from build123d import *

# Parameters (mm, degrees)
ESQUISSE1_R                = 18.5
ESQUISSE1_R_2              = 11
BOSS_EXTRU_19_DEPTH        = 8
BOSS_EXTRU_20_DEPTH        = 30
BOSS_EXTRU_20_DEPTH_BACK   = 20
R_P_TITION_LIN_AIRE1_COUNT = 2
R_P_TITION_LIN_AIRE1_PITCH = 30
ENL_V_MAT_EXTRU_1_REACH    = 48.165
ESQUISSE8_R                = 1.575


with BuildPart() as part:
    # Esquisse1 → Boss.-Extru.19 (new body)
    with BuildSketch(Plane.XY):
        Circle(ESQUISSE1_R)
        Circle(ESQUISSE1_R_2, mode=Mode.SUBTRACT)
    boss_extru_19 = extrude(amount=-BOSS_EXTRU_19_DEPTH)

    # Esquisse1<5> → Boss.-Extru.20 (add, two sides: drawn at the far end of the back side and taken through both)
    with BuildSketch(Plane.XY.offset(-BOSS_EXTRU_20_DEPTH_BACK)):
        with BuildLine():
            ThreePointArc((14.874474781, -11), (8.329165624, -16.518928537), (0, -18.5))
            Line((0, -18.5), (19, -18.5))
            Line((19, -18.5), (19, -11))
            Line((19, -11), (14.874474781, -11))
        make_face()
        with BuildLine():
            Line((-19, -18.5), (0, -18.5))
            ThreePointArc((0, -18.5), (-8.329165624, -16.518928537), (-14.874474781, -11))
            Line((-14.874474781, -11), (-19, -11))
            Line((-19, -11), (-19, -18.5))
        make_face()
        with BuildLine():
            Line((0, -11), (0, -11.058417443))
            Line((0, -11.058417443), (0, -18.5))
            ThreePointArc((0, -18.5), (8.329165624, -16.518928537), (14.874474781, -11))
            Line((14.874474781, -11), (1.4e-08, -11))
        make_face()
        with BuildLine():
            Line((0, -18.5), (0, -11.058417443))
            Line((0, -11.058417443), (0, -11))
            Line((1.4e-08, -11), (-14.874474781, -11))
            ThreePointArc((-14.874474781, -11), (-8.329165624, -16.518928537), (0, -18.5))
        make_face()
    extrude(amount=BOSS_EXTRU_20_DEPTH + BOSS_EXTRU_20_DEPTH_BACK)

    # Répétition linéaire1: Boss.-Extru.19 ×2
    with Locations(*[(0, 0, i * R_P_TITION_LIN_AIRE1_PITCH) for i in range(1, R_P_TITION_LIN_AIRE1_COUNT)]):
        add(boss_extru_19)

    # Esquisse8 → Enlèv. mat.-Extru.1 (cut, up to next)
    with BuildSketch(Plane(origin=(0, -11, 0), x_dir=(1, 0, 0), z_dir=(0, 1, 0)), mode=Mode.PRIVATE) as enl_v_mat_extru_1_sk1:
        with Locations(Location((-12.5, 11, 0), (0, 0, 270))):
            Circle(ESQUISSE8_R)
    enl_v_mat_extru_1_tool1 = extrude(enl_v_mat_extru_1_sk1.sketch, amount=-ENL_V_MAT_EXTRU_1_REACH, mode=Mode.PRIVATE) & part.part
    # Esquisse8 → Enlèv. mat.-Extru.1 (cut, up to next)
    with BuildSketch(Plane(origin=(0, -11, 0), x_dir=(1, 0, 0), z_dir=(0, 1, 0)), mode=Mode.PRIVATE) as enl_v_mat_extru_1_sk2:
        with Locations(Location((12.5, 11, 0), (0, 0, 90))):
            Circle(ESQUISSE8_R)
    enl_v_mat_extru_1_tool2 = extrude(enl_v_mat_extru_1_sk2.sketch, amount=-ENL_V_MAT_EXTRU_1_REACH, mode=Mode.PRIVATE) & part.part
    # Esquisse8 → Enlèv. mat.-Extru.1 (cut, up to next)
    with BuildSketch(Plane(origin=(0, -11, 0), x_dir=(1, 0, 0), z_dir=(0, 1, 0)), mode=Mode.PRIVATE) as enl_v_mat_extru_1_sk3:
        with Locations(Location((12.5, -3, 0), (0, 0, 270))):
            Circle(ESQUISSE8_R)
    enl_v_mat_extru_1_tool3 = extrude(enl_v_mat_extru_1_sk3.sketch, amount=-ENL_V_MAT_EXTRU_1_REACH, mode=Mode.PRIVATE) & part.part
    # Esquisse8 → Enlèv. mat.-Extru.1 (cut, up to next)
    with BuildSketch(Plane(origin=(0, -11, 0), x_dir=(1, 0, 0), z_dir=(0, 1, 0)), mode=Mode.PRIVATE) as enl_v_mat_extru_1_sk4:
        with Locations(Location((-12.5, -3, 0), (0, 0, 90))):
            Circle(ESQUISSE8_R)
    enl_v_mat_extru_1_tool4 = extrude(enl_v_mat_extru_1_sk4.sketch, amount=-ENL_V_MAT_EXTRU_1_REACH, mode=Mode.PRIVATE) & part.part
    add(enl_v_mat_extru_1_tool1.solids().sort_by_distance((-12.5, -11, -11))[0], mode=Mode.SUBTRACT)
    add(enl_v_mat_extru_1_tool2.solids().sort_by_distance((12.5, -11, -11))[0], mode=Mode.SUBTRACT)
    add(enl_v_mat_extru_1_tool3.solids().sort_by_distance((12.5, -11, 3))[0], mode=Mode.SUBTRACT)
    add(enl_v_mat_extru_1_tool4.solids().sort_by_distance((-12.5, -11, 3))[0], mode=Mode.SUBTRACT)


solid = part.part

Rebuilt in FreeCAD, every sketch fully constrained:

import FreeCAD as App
import Part
import Sketcher
from FreeCAD import Vector
Q = App.Units.Quantity


def add_polygon(sketch, points):
    """Adds a closed chain of lines whose ends are joined by coincident constraints."""
    first, n = sketch.GeometryCount, len(points)
    for a, b in zip(points, points[1:] + points[:1]):
        sketch.addGeometry(Part.LineSegment(App.Vector(*a, 0), App.Vector(*b, 0)), False)
    for i in range(n):
        sketch.addConstraint(Sketcher.Constraint("Coincident", first + i, 2, first + (i + 1) % n, 1))

doc = App.newDocument("Part")
body = doc.addObject("PartDesign::Body", "Body")

sketch1 = body.newObject("Sketcher::SketchObject", "Sketch")
sketch1.AttachmentSupport = (doc.getObject("XY_Plane"), [""])
sketch1.MapMode = "FlatFace"
sketch1.addGeometry([
    Part.Circle(Vector(0, 0, 0), Vector(0, 0, 1), 18),
    Part.Circle(Vector(0, 0, 0), Vector(0, 0, 1), 11),
], False)
sketch1.addConstraint([
    Sketcher.Constraint("Coincident", 0, 3, -1, 1),
    Sketcher.Constraint("Coincident", 1, 3, -1, 1),
    Sketcher.Constraint("Diameter", 0, Q("37 mm")),
    Sketcher.Constraint("Diameter", 1, Q("22 mm")),
])
pad1 = body.newObject("PartDesign::Pad", "Pad")
pad1.Profile = sketch1
pad1.Length = 8
pad1.Reversed = True

sketch2 = body.newObject("Sketcher::SketchObject", "Sketch001")
sketch2.AttachmentSupport = (doc.getObject("XY_Plane"), [""])
sketch2.MapMode = "FlatFace"
add_polygon(sketch2, [(19, -18), (19, -11), (-19, -11), (-19, -18)])
sketch2.addConstraint([
    Sketcher.Constraint("Vertical", 0),
    Sketcher.Constraint("Horizontal", 1),
    Sketcher.Constraint("Vertical", 2),
    Sketcher.Constraint("Horizontal", 3),
    Sketcher.Constraint("DistanceX", 1, 2, 1, 1, Q("38 mm")),
    Sketcher.Constraint("DistanceY", 0, 1, 0, 2, Q("7.5 mm")),
    Sketcher.Constraint("DistanceX", -1, 1, 0, 2, Q("19 mm")),
    Sketcher.Constraint("DistanceY", 0, 2, -1, 1, Q("11 mm")),
])
pad2 = body.newObject("PartDesign::Pad", "Pad001")
pad2.Profile = sketch2
pad2.Type = "TwoLengths"
pad2.Length = 30
pad2.Length2 = 20
doc.recompute()

linearpattern = body.newObject("PartDesign::LinearPattern", "LinearPattern")
linearpattern.Originals = [pad1]
linearpattern.Direction = (doc.getObject("Z_Axis"), [""])
linearpattern.Mode = "offset"
linearpattern.Offset = 30
linearpattern.Occurrences = 2
body.Tip = linearpattern

sketch3 = body.newObject("Sketcher::SketchObject", "Sketch002")
sketch3.AttachmentSupport = (doc.getObject("XZ_Plane"), [""])
sketch3.MapMode = "FlatFace"
sketch3.AttachmentOffset = App.Placement(Vector(0, 0, 11), App.Rotation())
sketch3.addGeometry(Part.Circle(Vector(-12.5, -11, 0), Vector(0, 0, 1), 1.6), False)
sketch3.addConstraint([
    Sketcher.Constraint("Diameter", 0, Q("3.15 mm")),
    Sketcher.Constraint("DistanceY", 0, 3, -1, 1, Q("11 mm")),
    Sketcher.Constraint("DistanceX", 0, 3, -1, 1, Q("12.5 mm")),
])
pocket1 = body.newObject("PartDesign::Pocket", "Pocket")
pocket1.Profile = sketch3
pocket1.Type = "UpToFirst"
pocket1.Reversed = True

sketch4 = body.newObject("Sketcher::SketchObject", "Sketch003")
sketch4.AttachmentSupport = (doc.getObject("XZ_Plane"), [""])
sketch4.MapMode = "FlatFace"
sketch4.AttachmentOffset = App.Placement(Vector(0, 0, 11), App.Rotation())
sketch4.addGeometry(Part.Circle(Vector(12.5, -11, 0), Vector(0, 0, 1), 1.6), False)
sketch4.addConstraint([
    Sketcher.Constraint("Diameter", 0, Q("3.15 mm")),
    Sketcher.Constraint("DistanceY", 0, 3, -1, 1, Q("11 mm")),
    Sketcher.Constraint("DistanceX", -1, 1, 0, 3, Q("12.5 mm")),
])
pocket2 = body.newObject("PartDesign::Pocket", "Pocket001")
pocket2.Profile = sketch4
pocket2.Type = "UpToFirst"
pocket2.Reversed = True

sketch5 = body.newObject("Sketcher::SketchObject", "Sketch004")
sketch5.AttachmentSupport = (doc.getObject("XZ_Plane"), [""])
sketch5.MapMode = "FlatFace"
sketch5.AttachmentOffset = App.Placement(Vector(0, 0, 11), App.Rotation())
sketch5.addGeometry(Part.Circle(Vector(12.5, 3, 0), Vector(0, 0, 1), 1.6), False)
sketch5.addConstraint([
    Sketcher.Constraint("Diameter", 0, Q("3.15 mm")),
    Sketcher.Constraint("DistanceY", -1, 1, 0, 3, Q("3 mm")),
    Sketcher.Constraint("DistanceX", -1, 1, 0, 3, Q("12.5 mm")),
])
pocket3 = body.newObject("PartDesign::Pocket", "Pocket002")
pocket3.Profile = sketch5
pocket3.Type = "UpToFirst"
pocket3.Reversed = True

sketch6 = body.newObject("Sketcher::SketchObject", "Sketch005")
sketch6.AttachmentSupport = (doc.getObject("XZ_Plane"), [""])
sketch6.MapMode = "FlatFace"
sketch6.AttachmentOffset = App.Placement(Vector(0, 0, 11), App.Rotation())
sketch6.addGeometry(Part.Circle(Vector(-12.5, 3, 0), Vector(0, 0, 1), 1.6), False)
sketch6.addConstraint([
    Sketcher.Constraint("Diameter", 0, Q("3.15 mm")),
    Sketcher.Constraint("DistanceY", -1, 1, 0, 3, Q("3 mm")),
    Sketcher.Constraint("DistanceX", 0, 3, -1, 1, Q("12.5 mm")),
])
pocket4 = body.newObject("PartDesign::Pocket", "Pocket003")
pocket4.Profile = sketch6
pocket4.Type = "UpToFirst"
pocket4.Reversed = True

doc.recompute()
